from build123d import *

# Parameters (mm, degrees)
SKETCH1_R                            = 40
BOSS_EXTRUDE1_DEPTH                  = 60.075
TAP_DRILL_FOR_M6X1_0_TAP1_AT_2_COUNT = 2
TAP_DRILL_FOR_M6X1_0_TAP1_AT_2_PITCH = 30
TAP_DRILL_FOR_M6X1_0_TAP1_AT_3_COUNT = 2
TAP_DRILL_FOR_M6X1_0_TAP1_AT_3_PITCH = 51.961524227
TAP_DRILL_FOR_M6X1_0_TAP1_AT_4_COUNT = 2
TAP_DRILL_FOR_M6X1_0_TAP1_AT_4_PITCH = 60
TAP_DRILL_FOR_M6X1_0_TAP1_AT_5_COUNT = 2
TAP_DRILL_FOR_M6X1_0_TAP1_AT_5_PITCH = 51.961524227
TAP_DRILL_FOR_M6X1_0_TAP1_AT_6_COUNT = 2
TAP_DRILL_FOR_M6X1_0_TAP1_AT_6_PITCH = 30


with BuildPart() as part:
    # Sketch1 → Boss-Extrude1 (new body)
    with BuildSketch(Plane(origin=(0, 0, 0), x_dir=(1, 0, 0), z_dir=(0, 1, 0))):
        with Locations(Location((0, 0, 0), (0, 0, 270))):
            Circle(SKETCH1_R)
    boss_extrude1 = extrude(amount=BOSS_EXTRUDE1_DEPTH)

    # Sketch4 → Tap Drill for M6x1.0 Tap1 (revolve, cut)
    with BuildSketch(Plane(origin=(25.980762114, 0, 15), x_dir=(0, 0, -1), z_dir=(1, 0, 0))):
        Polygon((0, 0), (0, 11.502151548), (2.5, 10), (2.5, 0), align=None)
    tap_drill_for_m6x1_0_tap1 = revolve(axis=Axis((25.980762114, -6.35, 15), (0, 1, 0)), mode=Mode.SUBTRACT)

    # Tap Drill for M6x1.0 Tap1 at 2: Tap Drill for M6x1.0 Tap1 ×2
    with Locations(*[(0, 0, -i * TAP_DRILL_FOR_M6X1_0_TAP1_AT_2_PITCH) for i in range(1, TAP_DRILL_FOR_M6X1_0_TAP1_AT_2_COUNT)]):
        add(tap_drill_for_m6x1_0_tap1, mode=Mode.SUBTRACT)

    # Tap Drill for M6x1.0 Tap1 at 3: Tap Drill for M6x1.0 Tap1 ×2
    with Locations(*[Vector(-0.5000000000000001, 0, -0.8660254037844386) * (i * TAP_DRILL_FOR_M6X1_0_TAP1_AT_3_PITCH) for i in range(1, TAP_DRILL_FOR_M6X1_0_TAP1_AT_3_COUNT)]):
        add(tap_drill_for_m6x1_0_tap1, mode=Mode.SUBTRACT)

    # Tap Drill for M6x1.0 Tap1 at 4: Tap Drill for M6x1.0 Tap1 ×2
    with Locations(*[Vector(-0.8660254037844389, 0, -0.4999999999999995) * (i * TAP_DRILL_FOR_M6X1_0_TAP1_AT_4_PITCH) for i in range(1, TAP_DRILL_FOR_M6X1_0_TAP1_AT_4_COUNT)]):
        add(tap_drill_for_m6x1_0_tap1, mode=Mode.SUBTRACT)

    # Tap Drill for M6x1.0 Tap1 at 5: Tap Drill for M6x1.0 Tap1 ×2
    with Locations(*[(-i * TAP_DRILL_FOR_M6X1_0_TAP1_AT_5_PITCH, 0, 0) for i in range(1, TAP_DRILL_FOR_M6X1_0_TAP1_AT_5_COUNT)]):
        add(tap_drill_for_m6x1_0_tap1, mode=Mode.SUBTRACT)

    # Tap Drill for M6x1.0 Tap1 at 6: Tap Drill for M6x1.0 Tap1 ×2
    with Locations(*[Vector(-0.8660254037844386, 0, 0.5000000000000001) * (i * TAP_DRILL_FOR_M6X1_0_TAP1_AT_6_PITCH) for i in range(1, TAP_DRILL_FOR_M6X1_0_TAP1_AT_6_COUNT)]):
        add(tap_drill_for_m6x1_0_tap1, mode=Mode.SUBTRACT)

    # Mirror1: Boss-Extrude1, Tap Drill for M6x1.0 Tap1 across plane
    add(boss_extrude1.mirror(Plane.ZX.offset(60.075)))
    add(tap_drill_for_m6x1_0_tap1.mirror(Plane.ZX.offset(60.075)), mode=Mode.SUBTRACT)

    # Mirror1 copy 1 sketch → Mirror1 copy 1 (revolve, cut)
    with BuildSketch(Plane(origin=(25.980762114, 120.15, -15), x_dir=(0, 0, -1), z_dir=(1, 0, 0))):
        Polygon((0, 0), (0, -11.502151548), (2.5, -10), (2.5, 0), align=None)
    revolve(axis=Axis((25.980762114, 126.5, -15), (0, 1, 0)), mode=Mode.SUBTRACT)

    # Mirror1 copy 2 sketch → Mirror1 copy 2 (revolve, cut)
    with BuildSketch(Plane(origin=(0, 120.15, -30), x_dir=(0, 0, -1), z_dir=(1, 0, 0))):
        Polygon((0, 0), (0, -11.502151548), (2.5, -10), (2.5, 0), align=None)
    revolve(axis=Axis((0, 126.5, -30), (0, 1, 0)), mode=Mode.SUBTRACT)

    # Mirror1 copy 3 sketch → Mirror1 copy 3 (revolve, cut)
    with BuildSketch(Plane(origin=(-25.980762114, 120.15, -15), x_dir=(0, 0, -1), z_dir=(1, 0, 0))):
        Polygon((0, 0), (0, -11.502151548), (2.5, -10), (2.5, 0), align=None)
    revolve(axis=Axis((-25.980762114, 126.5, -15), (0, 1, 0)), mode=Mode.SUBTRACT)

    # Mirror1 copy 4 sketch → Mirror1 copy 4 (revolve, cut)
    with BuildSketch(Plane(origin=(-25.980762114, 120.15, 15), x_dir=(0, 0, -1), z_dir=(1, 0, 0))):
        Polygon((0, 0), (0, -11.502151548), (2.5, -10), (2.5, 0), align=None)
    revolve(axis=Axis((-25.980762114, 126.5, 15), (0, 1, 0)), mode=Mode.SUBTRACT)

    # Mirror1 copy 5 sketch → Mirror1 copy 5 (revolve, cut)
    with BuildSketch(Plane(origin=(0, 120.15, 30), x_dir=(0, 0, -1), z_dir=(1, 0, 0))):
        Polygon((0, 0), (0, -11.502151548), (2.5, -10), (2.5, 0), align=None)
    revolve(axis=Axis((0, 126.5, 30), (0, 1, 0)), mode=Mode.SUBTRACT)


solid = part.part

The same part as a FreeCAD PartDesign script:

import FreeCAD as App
import Part
import Sketcher
from FreeCAD import Vector
Q = App.Units.Quantity


def add_polygon(sketch, points):
    """Adds a closed chain of lines whose ends are joined by coincident constraints."""
    first, n = sketch.GeometryCount, len(points)
    for a, b in zip(points, points[1:] + points[:1]):
        sketch.addGeometry(Part.LineSegment(App.Vector(*a, 0), App.Vector(*b, 0)), False)
    for i in range(n):
        sketch.addConstraint(Sketcher.Constraint("Coincident", first + i, 2, first + (i + 1) % n, 1))

doc = App.newDocument("Part")
body = doc.addObject("PartDesign::Body", "Body")

# Sketch on XZ plane
sketch1 = doc.addObject("Sketcher::SketchObject", "Sketch")
body.addObject(sketch1)
sketch1.AttachmentSupport = (doc.XZ_Plane, [""])
sketch1.MapMode = "FlatFace"
sketch1.addGeometry(Part.Circle(Vector(0, 0, 0), Vector(0, 0, 1), 40), False)
sketch1.addConstraint([
    Sketcher.Constraint("Coincident", 0, 3, -1, 1),
    Sketcher.Constraint("Diameter", 0, Q("80 mm")),
])
pad1 = doc.addObject("PartDesign::Pad", "Pad")
body.addObject(pad1)
pad1.Profile = sketch1
pad1.Length = 60.075
pad1.Reversed = True

# Sketch on YZ plane
sketch2 = doc.addObject("Sketcher::SketchObject", "Sketch001")
body.addObject(sketch2)
sketch2.AttachmentSupport = (doc.YZ_Plane, [""])
sketch2.MapMode = "FlatFace"
sketch2.AttachmentOffset = App.Placement(Vector(0, 0, 25.980762), App.Rotation())
add_polygon(sketch2, [(11.502152, 15), (0, 15), (0, 12.5), (10, 12.5)])  # lines 0-3
sketch2.addGeometry(Part.LineSegment(Vector(0, 15, 0), Vector(11.502152, 15, 0)), True)  # axis
sketch2.addConstraint([
    Sketcher.Constraint("Horizontal", 0),
    Sketcher.Constraint("Vertical", 1),
    Sketcher.Constraint("Horizontal", 2),
    Sketcher.Constraint("Horizontal", 4),
    Sketcher.Constraint("Coincident", 4, 1, 0, 2),
    Sketcher.Constraint("PointOnObject", 0, 2, -2),
    Sketcher.Constraint("Equal", 0, 4),
    Sketcher.Constraint("DistanceX", 2, 1, 2, 2, Q("10 mm")),
    Sketcher.Constraint("Angle", 3, Q("59 deg")),
    Sketcher.Constraint("DistanceY", 1, 2, 1, 1, Q("2.5 mm")),
    Sketcher.Constraint("DistanceY", -1, 1, 0, 2, Q("15 mm")),
])
groove = doc.addObject("PartDesign::Groove", "Groove")
body.addObject(groove)
groove.Profile = sketch2
groove.ReferenceAxis = (sketch2, ["Axis0"])
groove.Angle = 360
doc.recompute()

linearpattern = doc.addObject("PartDesign::LinearPattern", "LinearPattern")
body.addObject(linearpattern)
linearpattern.Originals = [groove]
linearpattern.Direction = (doc.Z_Axis, [""])
linearpattern.Mode = "offset"
linearpattern.Offset = 30
linearpattern.Occurrences = 2
linearpattern.Reversed = True
body.Tip = linearpattern
doc.recompute()

datumline = doc.addObject("PartDesign::Line", "DatumLine")
body.addObject(datumline)
datumline.Placement = App.Placement(Vector(0, 0, 0), App.Rotation(Vector(0, 0, 1), Vector(-0.5, 0, -0.866025404)))
linearpattern2 = doc.addObject("PartDesign::LinearPattern", "LinearPattern001")
body.addObject(linearpattern2)
linearpattern2.Originals = [groove]
linearpattern2.Direction = (datumline, [""])
linearpattern2.Mode = "offset"
linearpattern2.Offset = 51.961524
linearpattern2.Occurrences = 2
body.Tip = linearpattern2
doc.recompute()

datumline2 = doc.addObject("PartDesign::Line", "DatumLine001")
body.addObject(datumline2)
datumline2.Placement = App.Placement(Vector(0, 0, 0), App.Rotation(Vector(0, 0, 1), Vector(-0.866025404, 0, -0.5)))
linearpattern3 = doc.addObject("PartDesign::LinearPattern", "LinearPattern002")
body.addObject(linearpattern3)
linearpattern3.Originals = [groove]
linearpattern3.Direction = (datumline2, [""])
linearpattern3.Mode = "offset"
linearpattern3.Offset = 60
linearpattern3.Occurrences = 2
body.Tip = linearpattern3
doc.recompute()

linearpattern4 = doc.addObject("PartDesign::LinearPattern", "LinearPattern003")
body.addObject(linearpattern4)
linearpattern4.Originals = [groove]
linearpattern4.Direction = (doc.X_Axis, [""])
linearpattern4.Mode = "offset"
linearpattern4.Offset = 51.961524
linearpattern4.Occurrences = 2
linearpattern4.Reversed = True
body.Tip = linearpattern4
doc.recompute()

datumline3 = doc.addObject("PartDesign::Line", "DatumLine002")
body.addObject(datumline3)
datumline3.Placement = App.Placement(Vector(0, 0, 0), App.Rotation(Vector(0, 0, 1), Vector(-0.866025404, 0, 0.5)))
linearpattern5 = doc.addObject("PartDesign::LinearPattern", "LinearPattern004")
body.addObject(linearpattern5)
linearpattern5.Originals = [groove]
linearpattern5.Direction = (datumline3, [""])
linearpattern5.Mode = "offset"
linearpattern5.Offset = 30
linearpattern5.Occurrences = 2
body.Tip = linearpattern5
doc.recompute()

datumplane = doc.addObject("PartDesign::Plane", "DatumPlane")
body.addObject(datumplane)
datumplane.AttachmentSupport = (doc.XZ_Plane, [""])
datumplane.MapMode = "FlatFace"
datumplane.AttachmentOffset = App.Placement(Vector(0, 0, -60.075), App.Rotation())
mirrored = doc.addObject("PartDesign::Mirrored", "Mirrored")
body.addObject(mirrored)
mirrored.Originals = [pad1, groove]
mirrored.MirrorPlane = (datumplane, [""])
body.Tip = mirrored

# Sketch on YZ plane
sketch3 = doc.addObject("Sketcher::SketchObject", "Sketch002")
body.addObject(sketch3)
sketch3.AttachmentSupport = (doc.YZ_Plane, [""])
sketch3.MapMode = "FlatFace"
sketch3.AttachmentOffset = App.Placement(Vector(0, 0, 25.980762), App.Rotation())
add_polygon(sketch3, [(120.15, -15), (108.647848, -15), (110.15, -17.5), (120.15, -17.5)])  # lines 0-3
sketch3.addGeometry(Part.LineSegment(Vector(108.647848, -15, 0), Vector(120.15, -15, 0)), True)  # axis
sketch3.addConstraint([
    Sketcher.Constraint("Horizontal", 0),
    Sketcher.Constraint("Horizontal", 2),
    Sketcher.Constraint("Vertical", 3),
    Sketcher.Constraint("Horizontal", 4),
    Sketcher.Constraint("Coincident", 4, 1, 0, 2),
    Sketcher.Constraint("Vertical", 2, 2, 4, 2),
    Sketcher.Constraint("DistanceX", 2, 1, 2, 2, Q("10 mm")),
    Sketcher.Constraint("Angle", 1, Q("-59 deg")),
    Sketcher.Constraint("DistanceY", 3, 1, 3, 2, Q("2.5 mm")),
    Sketcher.Constraint("DistanceY", 0, 2, -1, 1, Q("15 mm")),
    Sketcher.Constraint("DistanceX", -1, 1, 1, 2, Q("110.15 mm")),
])
groove2 = doc.addObject("PartDesign::Groove", "Groove001")
body.addObject(groove2)
groove2.Profile = sketch3
groove2.ReferenceAxis = (sketch3, ["Axis0"])
groove2.Angle = 360

# Sketch on YZ plane
sketch4 = doc.addObject("Sketcher::SketchObject", "Sketch003")
body.addObject(sketch4)
sketch4.AttachmentSupport = (doc.YZ_Plane, [""])
sketch4.MapMode = "FlatFace"
add_polygon(sketch4, [(120.15, -30), (108.647848, -30), (110.15, -32.5), (120.15, -32.5)])  # lines 0-3
sketch4.addGeometry(Part.LineSegment(Vector(108.647848, -30, 0), Vector(120.15, -30, 0)), True)  # axis
sketch4.addConstraint([
    Sketcher.Constraint("Horizontal", 0),
    Sketcher.Constraint("Horizontal", 2),
    Sketcher.Constraint("Vertical", 3),
    Sketcher.Constraint("Horizontal", 4),
    Sketcher.Constraint("Coincident", 4, 1, 0, 2),
    Sketcher.Constraint("Vertical", 2, 2, 4, 2),
    Sketcher.Constraint("DistanceX", 2, 1, 2, 2, Q("10 mm")),
    Sketcher.Constraint("Angle", 1, Q("-59 deg")),
    Sketcher.Constraint("DistanceY", 3, 1, 3, 2, Q("2.5 mm")),
    Sketcher.Constraint("DistanceY", 0, 2, -1, 1, Q("30 mm")),
    Sketcher.Constraint("DistanceX", -1, 1, 1, 2, Q("110.15 mm")),
])
groove3 = doc.addObject("PartDesign::Groove", "Groove002")
body.addObject(groove3)
groove3.Profile = sketch4
groove3.ReferenceAxis = (sketch4, ["Axis0"])
groove3.Angle = 360

# Sketch on YZ plane
sketch5 = doc.addObject("Sketcher::SketchObject", "Sketch004")
body.addObject(sketch5)
sketch5.AttachmentSupport = (doc.YZ_Plane, [""])
sketch5.MapMode = "FlatFace"
sketch5.AttachmentOffset = App.Placement(Vector(0, 0, -25.980762), App.Rotation())
add_polygon(sketch5, [(120.15, -15), (108.647848, -15), (110.15, -17.5), (120.15, -17.5)])  # lines 0-3
sketch5.addGeometry(Part.LineSegment(Vector(108.647848, -15, 0), Vector(120.15, -15, 0)), True)  # axis
sketch5.addConstraint([
    Sketcher.Constraint("Horizontal", 0),
    Sketcher.Constraint("Horizontal", 2),
    Sketcher.Constraint("Vertical", 3),
    Sketcher.Constraint("Horizontal", 4),
    Sketcher.Constraint("Coincident", 4, 1, 0, 2),
    Sketcher.Constraint("Vertical", 2, 2, 4, 2),
    Sketcher.Constraint("DistanceX", 2, 1, 2, 2, Q("10 mm")),
    Sketcher.Constraint("Angle", 1, Q("-59 deg")),
    Sketcher.Constraint("DistanceY", 3, 1, 3, 2, Q("2.5 mm")),
    Sketcher.Constraint("DistanceY", 0, 2, -1, 1, Q("15 mm")),
    Sketcher.Constraint("DistanceX", -1, 1, 1, 2, Q("110.15 mm")),
])
groove4 = doc.addObject("PartDesign::Groove", "Groove003")
body.addObject(groove4)
groove4.Profile = sketch5
groove4.ReferenceAxis = (sketch5, ["Axis0"])
groove4.Angle = 360

# Sketch on YZ plane
sketch6 = doc.addObject("Sketcher::SketchObject", "Sketch005")
body.addObject(sketch6)
sketch6.AttachmentSupport = (doc.YZ_Plane, [""])
sketch6.MapMode = "FlatFace"
sketch6.AttachmentOffset = App.Placement(Vector(0, 0, -25.980762), App.Rotation())
add_polygon(sketch6, [(120.15, 15), (108.647848, 15), (110.15, 12.5), (120.15, 12.5)])  # lines 0-3
sketch6.addGeometry(Part.LineSegment(Vector(108.647848, 15, 0), Vector(120.15, 15, 0)), True)  # axis
sketch6.addConstraint([
    Sketcher.Constraint("Horizontal", 0),
    Sketcher.Constraint("Horizontal", 2),
    Sketcher.Constraint("Vertical", 3),
    Sketcher.Constraint("Horizontal", 4),
    Sketcher.Constraint("Coincident", 4, 1, 0, 2),
    Sketcher.Constraint("Vertical", 2, 2, 4, 2),
    Sketcher.Constraint("DistanceX", 2, 1, 2, 2, Q("10 mm")),
    Sketcher.Constraint("Angle", 1, Q("-59 deg")),
    Sketcher.Constraint("DistanceY", 3, 1, 3, 2, Q("2.5 mm")),
    Sketcher.Constraint("DistanceY", -1, 1, 0, 2, Q("15 mm")),
    Sketcher.Constraint("DistanceX", -1, 1, 1, 2, Q("110.15 mm")),
])
groove5 = doc.addObject("PartDesign::Groove", "Groove004")
body.addObject(groove5)
groove5.Profile = sketch6
groove5.ReferenceAxis = (sketch6, ["Axis0"])
groove5.Angle = 360

# Sketch on YZ plane
sketch7 = doc.addObject("Sketcher::SketchObject", "Sketch006")
body.addObject(sketch7)
sketch7.AttachmentSupport = (doc.YZ_Plane, [""])
sketch7.MapMode = "FlatFace"
add_polygon(sketch7, [(120.15, 30), (108.647848, 30), (110.15, 27.5), (120.15, 27.5)])  # lines 0-3
sketch7.addGeometry(Part.LineSegment(Vector(108.647848, 30, 0), Vector(120.15, 30, 0)), True)  # axis
sketch7.addConstraint([
    Sketcher.Constraint("Horizontal", 0),
    Sketcher.Constraint("Horizontal", 2),
    Sketcher.Constraint("Vertical", 3),
    Sketcher.Constraint("Horizontal", 4),
    Sketcher.Constraint("Coincident", 4, 1, 0, 2),
    Sketcher.Constraint("Vertical", 2, 2, 4, 2),
    Sketcher.Constraint("DistanceX", 2, 1, 2, 2, Q("10 mm")),
    Sketcher.Constraint("Angle", 1, Q("-59 deg")),
    Sketcher.Constraint("DistanceY", 3, 1, 3, 2, Q("2.5 mm")),
    Sketcher.Constraint("DistanceY", -1, 1, 0, 2, Q("30 mm")),
    Sketcher.Constraint("DistanceX", -1, 1, 1, 2, Q("110.15 mm")),
])
groove6 = doc.addObject("PartDesign::Groove", "Groove005")
body.addObject(groove6)
groove6.Profile = sketch7
groove6.ReferenceAxis = (sketch7, ["Axis0"])
groove6.Angle = 360

doc.recompute()
